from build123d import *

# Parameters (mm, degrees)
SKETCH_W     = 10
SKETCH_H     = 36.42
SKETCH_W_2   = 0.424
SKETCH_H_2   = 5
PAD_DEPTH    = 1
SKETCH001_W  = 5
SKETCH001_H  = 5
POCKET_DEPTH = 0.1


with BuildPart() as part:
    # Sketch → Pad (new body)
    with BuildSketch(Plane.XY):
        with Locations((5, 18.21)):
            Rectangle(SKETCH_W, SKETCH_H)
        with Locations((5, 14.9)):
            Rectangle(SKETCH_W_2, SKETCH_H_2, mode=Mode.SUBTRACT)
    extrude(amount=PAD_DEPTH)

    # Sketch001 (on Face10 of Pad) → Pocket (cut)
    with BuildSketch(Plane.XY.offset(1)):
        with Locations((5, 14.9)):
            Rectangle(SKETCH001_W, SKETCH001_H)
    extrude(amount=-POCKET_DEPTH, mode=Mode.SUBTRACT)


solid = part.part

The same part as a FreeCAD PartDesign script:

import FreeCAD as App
import Part
import Sketcher
Q = App.Units.Quantity

doc = App.newDocument("Part")
body = doc.addObject("PartDesign::Body", "Body")

# Sketch on XY plane
sketch1 = body.newObject("Sketcher::SketchObject", "Sketch")
sketch1.AttachmentSupport = (doc.getObject("XY_Plane"), [""])
sketch1.MapMode = "FlatFace"
sketch1.addGeometry(Part.LineSegment(App.Vector(0, 36.42, 0), App.Vector(0, 0, 0)), False)
sketch1.addGeometry(Part.LineSegment(App.Vector(0, 0, 0), App.Vector(10, 0, 0)), False)
sketch1.addGeometry(Part.LineSegment(App.Vector(10, 0, 0), App.Vector(10, 36.42, 0)), False)
sketch1.addGeometry(Part.LineSegment(App.Vector(10, 36.42, 0), App.Vector(0, 36.42, 0)), False)
sketch1.addGeometry(Part.LineSegment(App.Vector(5.21, 12.4, 0), App.Vector(4.79, 12.4, 0)), False)
sketch1.addGeometry(Part.LineSegment(App.Vector(4.79, 12.4, 0), App.Vector(4.79, 17.4, 0)), False)
sketch1.addGeometry(Part.LineSegment(App.Vector(4.79, 17.4, 0), App.Vector(5.21, 17.4, 0)), False)
sketch1.addGeometry(Part.LineSegment(App.Vector(5.21, 17.4, 0), App.Vector(5.21, 12.4, 0)), False)
sketch1.addConstraint(Sketcher.Constraint("Coincident", 0, 2, 1, 1))
sketch1.addConstraint(Sketcher.Constraint("Coincident", 1, 2, 2, 1))
sketch1.addConstraint(Sketcher.Constraint("Coincident", 2, 2, 3, 1))
sketch1.addConstraint(Sketcher.Constraint("Coincident", 3, 2, 0, 1))
sketch1.addConstraint(Sketcher.Constraint("Coincident", 4, 2, 5, 1))
sketch1.addConstraint(Sketcher.Constraint("Coincident", 5, 2, 6, 1))
sketch1.addConstraint(Sketcher.Constraint("Coincident", 6, 2, 7, 1))
sketch1.addConstraint(Sketcher.Constraint("Coincident", 7, 2, 4, 1))
sketch1.addConstraint(Sketcher.Constraint("Vertical", 0))
sketch1.addConstraint(Sketcher.Constraint("Horizontal", 1))
sketch1.addConstraint(Sketcher.Constraint("Vertical", 2))
sketch1.addConstraint(Sketcher.Constraint("Horizontal", 3))
sketch1.addConstraint(Sketcher.Constraint("Horizontal", 4))
sketch1.addConstraint(Sketcher.Constraint("Vertical", 5))
sketch1.addConstraint(Sketcher.Constraint("Horizontal", 6))
sketch1.addConstraint(Sketcher.Constraint("Vertical", 7))
sketch1.addConstraint(Sketcher.Constraint("Coincident", 0, 2, -1, 1))
sketch1.addConstraint(Sketcher.Constraint("DistanceX", 1, 1, 1, 2, Q("10 mm")))
sketch1.addConstraint(Sketcher.Constraint("DistanceY", 5, 1, 5, 2, Q("5 mm")))
sketch1.addConstraint(Sketcher.Constraint("DistanceY", 0, 2, 0, 1, Q("36.42 mm")))
sketch1.addConstraint(Sketcher.Constraint("DistanceY", -1, 1, 4, 2, Q("12.4 mm")))
sketch1.addConstraint(Sketcher.Constraint("DistanceX", 4, 2, 4, 1, Q("0.424 mm")))
sketch1.addConstraint(Sketcher.Constraint("DistanceX", -1, 1, 4, 2, Q("4.788 mm")))
pad1 = body.newObject("PartDesign::Pad", "Pad")
pad1.Profile = sketch1
pad1.Length = 1

# Sketch on XY plane
sketch2 = body.newObject("Sketcher::SketchObject", "Sketch001")
sketch2.AttachmentSupport = (doc.getObject("XY_Plane"), [""])
sketch2.MapMode = "FlatFace"
sketch2.AttachmentOffset = App.Placement(App.Vector(0, 0, 1), App.Rotation())
sketch2.addGeometry(Part.LineSegment(App.Vector(2.5, 17.4, 0), App.Vector(2.5, 12.4, 0)), False)
sketch2.addGeometry(Part.LineSegment(App.Vector(2.5, 12.4, 0), App.Vector(7.5, 12.4, 0)), False)
sketch2.addGeometry(Part.LineSegment(App.Vector(7.5, 12.4, 0), App.Vector(7.5, 17.4, 0)), False)
sketch2.addGeometry(Part.LineSegment(App.Vector(7.5, 17.4, 0), App.Vector(2.5, 17.4, 0)), False)
sketch2.addConstraint(Sketcher.Constraint("Coincident", 0, 2, 1, 1))
sketch2.addConstraint(Sketcher.Constraint("Coincident", 1, 2, 2, 1))
sketch2.addConstraint(Sketcher.Constraint("Coincident", 2, 2, 3, 1))
sketch2.addConstraint(Sketcher.Constraint("Coincident", 3, 2, 0, 1))
sketch2.addConstraint(Sketcher.Constraint("Vertical", 0))
sketch2.addConstraint(Sketcher.Constraint("Horizontal", 1))
sketch2.addConstraint(Sketcher.Constraint("Vertical", 2))
sketch2.addConstraint(Sketcher.Constraint("Horizontal", 3))
sketch2.addConstraint(Sketcher.Constraint("Equal", 3, 0))
sketch2.addConstraint(Sketcher.Constraint("DistanceX", 1, 1, 1, 2, Q("5 mm")))
sketch2.addConstraint(Sketcher.Constraint("DistanceX", -1, 1, 0, 2, Q("2.5 mm")))
sketch2.addConstraint(Sketcher.Constraint("DistanceY", -1, 1, 0, 2, Q("12.4 mm")))
pocket1 = body.newObject("PartDesign::Pocket", "Pocket")
pocket1.Profile = sketch2
pocket1.Length = 0.1

doc.recompute()
